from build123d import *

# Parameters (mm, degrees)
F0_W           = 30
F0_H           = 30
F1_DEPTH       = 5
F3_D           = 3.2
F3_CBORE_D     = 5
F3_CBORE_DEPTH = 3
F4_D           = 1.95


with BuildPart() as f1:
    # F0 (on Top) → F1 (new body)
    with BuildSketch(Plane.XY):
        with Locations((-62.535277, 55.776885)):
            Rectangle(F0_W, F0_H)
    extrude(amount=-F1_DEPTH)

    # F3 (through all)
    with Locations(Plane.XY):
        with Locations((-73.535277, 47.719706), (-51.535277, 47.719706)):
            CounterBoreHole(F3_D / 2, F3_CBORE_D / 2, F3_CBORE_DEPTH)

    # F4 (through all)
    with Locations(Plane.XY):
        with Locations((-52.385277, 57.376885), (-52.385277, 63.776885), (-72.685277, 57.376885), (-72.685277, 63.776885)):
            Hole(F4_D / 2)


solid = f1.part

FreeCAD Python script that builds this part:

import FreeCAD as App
import Part
import Sketcher
from FreeCAD import Vector


def add_polygon(sketch, points):
    """Adds a closed chain of lines whose ends are joined by coincident constraints."""
    first, n = sketch.GeometryCount, len(points)
    for a, b in zip(points, points[1:] + points[:1]):
        sketch.addGeometry(Part.LineSegment(App.Vector(*a, 0), App.Vector(*b, 0)), False)
    for i in range(n):
        sketch.addConstraint(Sketcher.Constraint("Coincident", first + i, 2, first + (i + 1) % n, 1))

doc = App.newDocument("Part")
body = doc.addObject("PartDesign::Body", "Body")

# Sketch on XY plane
sketch1 = doc.addObject("Sketcher::SketchObject", "Sketch")
body.addObject(sketch1)
sketch1.AttachmentSupport = (doc.XY_Plane, [""])
sketch1.MapMode = "FlatFace"
add_polygon(sketch1, [(-78, 71), (-78, 41), (-48, 41), (-48, 71)])  # lines 0-3
sketch1.addConstraint(Sketcher.Constraint("Vertical", 0))
sketch1.addConstraint(Sketcher.Constraint("Horizontal", 1))
sketch1.addConstraint(Sketcher.Constraint("Vertical", 2))
sketch1.addConstraint(Sketcher.Constraint("Horizontal", 3))
sketch1.addConstraint(Sketcher.Constraint("Equal", 3, 0))
sketch1.addConstraint(Sketcher.Constraint("DistanceX", 1, 1, 1, 2, 30.0))
sketch1.addConstraint(Sketcher.Constraint("DistanceX", 0, 2, -1, 1, 77.535277))
sketch1.addConstraint(Sketcher.Constraint("DistanceY", -1, 1, 0, 2, 40.776885))
pad1 = doc.addObject("PartDesign::Pad", "Pad")
body.addObject(pad1)
pad1.Profile = sketch1
pad1.Length = 5
pad1.Reversed = True

# Sketch on XY plane
sketch2 = doc.addObject("Sketcher::SketchObject", "Sketch001")
body.addObject(sketch2)
sketch2.AttachmentSupport = (doc.XY_Plane, [""])
sketch2.MapMode = "FlatFace"
sketch2.addGeometry(Part.Circle(Vector(-73.5, 47.7, 0), Vector(0, 0, 1), 1.6), False)
sketch2.addGeometry(Part.Circle(Vector(-51.5, 47.7, 0), Vector(0, 0, 1), 1.6), False)
sketch2.addConstraint(Sketcher.Constraint("Equal", 0, 1))
sketch2.addConstraint(Sketcher.Constraint("Horizontal", 0, 3, 1, 3))
sketch2.addConstraint(Sketcher.Constraint("Diameter", 0, 3.2))
sketch2.addConstraint(Sketcher.Constraint("DistanceX", 0, 3, 1, 3, 22.0))
sketch2.addConstraint(Sketcher.Constraint("DistanceX", 0, 3, -1, 1, 73.535277))
sketch2.addConstraint(Sketcher.Constraint("DistanceY", -1, 1, 0, 3, 47.719706))
doc.recompute()
hole = doc.addObject("PartDesign::Hole", "Hole")
body.addObject(hole)
hole.Profile = sketch2
hole.ThreadType = "None"
hole.Diameter = 3.2
hole.DepthType = "ThroughAll"
hole.HoleCutType = "Counterbore"
hole.HoleCutDiameter = 5
hole.HoleCutDepth = 3

# Sketch on XY plane
sketch3 = doc.addObject("Sketcher::SketchObject", "Sketch002")
body.addObject(sketch3)
sketch3.AttachmentSupport = (doc.XY_Plane, [""])
sketch3.MapMode = "FlatFace"
sketch3.addGeometry(Part.Circle(Vector(-52.4, 57.4, 0), Vector(0, 0, 1), 1), False)
sketch3.addGeometry(Part.Circle(Vector(-52.4, 63.8, 0), Vector(0, 0, 1), 1), False)
sketch3.addGeometry(Part.Circle(Vector(-72.7, 57.4, 0), Vector(0, 0, 1), 1), False)
sketch3.addGeometry(Part.Circle(Vector(-72.7, 63.8, 0), Vector(0, 0, 1), 1), False)
sketch3.addConstraint(Sketcher.Constraint("Equal", 0, 1))
sketch3.addConstraint(Sketcher.Constraint("Equal", 1, 2))
sketch3.addConstraint(Sketcher.Constraint("Equal", 2, 3))
sketch3.addConstraint(Sketcher.Constraint("Horizontal", 0, 3, 2, 3))
sketch3.addConstraint(Sketcher.Constraint("Horizontal", 1, 3, 3, 3))
sketch3.addConstraint(Sketcher.Constraint("Vertical", 0, 3, 1, 3))
sketch3.addConstraint(Sketcher.Constraint("Vertical", 2, 3, 3, 3))
sketch3.addConstraint(Sketcher.Constraint("Diameter", 0, 1.95))
sketch3.addConstraint(Sketcher.Constraint("DistanceY", 0, 3, 1, 3, 6.4))
sketch3.addConstraint(Sketcher.Constraint("DistanceX", 2, 3, 0, 3, 20.3))
sketch3.addConstraint(Sketcher.Constraint("DistanceX", 0, 3, -1, 1, 52.385277))
sketch3.addConstraint(Sketcher.Constraint("DistanceY", -1, 1, 0, 3, 57.376885))
doc.recompute()
hole2 = doc.addObject("PartDesign::Hole", "Hole001")
body.addObject(hole2)
hole2.Profile = sketch3
hole2.ThreadType = "None"
hole2.Diameter = 1.95
hole2.DepthType = "ThroughAll"

doc.recompute()
